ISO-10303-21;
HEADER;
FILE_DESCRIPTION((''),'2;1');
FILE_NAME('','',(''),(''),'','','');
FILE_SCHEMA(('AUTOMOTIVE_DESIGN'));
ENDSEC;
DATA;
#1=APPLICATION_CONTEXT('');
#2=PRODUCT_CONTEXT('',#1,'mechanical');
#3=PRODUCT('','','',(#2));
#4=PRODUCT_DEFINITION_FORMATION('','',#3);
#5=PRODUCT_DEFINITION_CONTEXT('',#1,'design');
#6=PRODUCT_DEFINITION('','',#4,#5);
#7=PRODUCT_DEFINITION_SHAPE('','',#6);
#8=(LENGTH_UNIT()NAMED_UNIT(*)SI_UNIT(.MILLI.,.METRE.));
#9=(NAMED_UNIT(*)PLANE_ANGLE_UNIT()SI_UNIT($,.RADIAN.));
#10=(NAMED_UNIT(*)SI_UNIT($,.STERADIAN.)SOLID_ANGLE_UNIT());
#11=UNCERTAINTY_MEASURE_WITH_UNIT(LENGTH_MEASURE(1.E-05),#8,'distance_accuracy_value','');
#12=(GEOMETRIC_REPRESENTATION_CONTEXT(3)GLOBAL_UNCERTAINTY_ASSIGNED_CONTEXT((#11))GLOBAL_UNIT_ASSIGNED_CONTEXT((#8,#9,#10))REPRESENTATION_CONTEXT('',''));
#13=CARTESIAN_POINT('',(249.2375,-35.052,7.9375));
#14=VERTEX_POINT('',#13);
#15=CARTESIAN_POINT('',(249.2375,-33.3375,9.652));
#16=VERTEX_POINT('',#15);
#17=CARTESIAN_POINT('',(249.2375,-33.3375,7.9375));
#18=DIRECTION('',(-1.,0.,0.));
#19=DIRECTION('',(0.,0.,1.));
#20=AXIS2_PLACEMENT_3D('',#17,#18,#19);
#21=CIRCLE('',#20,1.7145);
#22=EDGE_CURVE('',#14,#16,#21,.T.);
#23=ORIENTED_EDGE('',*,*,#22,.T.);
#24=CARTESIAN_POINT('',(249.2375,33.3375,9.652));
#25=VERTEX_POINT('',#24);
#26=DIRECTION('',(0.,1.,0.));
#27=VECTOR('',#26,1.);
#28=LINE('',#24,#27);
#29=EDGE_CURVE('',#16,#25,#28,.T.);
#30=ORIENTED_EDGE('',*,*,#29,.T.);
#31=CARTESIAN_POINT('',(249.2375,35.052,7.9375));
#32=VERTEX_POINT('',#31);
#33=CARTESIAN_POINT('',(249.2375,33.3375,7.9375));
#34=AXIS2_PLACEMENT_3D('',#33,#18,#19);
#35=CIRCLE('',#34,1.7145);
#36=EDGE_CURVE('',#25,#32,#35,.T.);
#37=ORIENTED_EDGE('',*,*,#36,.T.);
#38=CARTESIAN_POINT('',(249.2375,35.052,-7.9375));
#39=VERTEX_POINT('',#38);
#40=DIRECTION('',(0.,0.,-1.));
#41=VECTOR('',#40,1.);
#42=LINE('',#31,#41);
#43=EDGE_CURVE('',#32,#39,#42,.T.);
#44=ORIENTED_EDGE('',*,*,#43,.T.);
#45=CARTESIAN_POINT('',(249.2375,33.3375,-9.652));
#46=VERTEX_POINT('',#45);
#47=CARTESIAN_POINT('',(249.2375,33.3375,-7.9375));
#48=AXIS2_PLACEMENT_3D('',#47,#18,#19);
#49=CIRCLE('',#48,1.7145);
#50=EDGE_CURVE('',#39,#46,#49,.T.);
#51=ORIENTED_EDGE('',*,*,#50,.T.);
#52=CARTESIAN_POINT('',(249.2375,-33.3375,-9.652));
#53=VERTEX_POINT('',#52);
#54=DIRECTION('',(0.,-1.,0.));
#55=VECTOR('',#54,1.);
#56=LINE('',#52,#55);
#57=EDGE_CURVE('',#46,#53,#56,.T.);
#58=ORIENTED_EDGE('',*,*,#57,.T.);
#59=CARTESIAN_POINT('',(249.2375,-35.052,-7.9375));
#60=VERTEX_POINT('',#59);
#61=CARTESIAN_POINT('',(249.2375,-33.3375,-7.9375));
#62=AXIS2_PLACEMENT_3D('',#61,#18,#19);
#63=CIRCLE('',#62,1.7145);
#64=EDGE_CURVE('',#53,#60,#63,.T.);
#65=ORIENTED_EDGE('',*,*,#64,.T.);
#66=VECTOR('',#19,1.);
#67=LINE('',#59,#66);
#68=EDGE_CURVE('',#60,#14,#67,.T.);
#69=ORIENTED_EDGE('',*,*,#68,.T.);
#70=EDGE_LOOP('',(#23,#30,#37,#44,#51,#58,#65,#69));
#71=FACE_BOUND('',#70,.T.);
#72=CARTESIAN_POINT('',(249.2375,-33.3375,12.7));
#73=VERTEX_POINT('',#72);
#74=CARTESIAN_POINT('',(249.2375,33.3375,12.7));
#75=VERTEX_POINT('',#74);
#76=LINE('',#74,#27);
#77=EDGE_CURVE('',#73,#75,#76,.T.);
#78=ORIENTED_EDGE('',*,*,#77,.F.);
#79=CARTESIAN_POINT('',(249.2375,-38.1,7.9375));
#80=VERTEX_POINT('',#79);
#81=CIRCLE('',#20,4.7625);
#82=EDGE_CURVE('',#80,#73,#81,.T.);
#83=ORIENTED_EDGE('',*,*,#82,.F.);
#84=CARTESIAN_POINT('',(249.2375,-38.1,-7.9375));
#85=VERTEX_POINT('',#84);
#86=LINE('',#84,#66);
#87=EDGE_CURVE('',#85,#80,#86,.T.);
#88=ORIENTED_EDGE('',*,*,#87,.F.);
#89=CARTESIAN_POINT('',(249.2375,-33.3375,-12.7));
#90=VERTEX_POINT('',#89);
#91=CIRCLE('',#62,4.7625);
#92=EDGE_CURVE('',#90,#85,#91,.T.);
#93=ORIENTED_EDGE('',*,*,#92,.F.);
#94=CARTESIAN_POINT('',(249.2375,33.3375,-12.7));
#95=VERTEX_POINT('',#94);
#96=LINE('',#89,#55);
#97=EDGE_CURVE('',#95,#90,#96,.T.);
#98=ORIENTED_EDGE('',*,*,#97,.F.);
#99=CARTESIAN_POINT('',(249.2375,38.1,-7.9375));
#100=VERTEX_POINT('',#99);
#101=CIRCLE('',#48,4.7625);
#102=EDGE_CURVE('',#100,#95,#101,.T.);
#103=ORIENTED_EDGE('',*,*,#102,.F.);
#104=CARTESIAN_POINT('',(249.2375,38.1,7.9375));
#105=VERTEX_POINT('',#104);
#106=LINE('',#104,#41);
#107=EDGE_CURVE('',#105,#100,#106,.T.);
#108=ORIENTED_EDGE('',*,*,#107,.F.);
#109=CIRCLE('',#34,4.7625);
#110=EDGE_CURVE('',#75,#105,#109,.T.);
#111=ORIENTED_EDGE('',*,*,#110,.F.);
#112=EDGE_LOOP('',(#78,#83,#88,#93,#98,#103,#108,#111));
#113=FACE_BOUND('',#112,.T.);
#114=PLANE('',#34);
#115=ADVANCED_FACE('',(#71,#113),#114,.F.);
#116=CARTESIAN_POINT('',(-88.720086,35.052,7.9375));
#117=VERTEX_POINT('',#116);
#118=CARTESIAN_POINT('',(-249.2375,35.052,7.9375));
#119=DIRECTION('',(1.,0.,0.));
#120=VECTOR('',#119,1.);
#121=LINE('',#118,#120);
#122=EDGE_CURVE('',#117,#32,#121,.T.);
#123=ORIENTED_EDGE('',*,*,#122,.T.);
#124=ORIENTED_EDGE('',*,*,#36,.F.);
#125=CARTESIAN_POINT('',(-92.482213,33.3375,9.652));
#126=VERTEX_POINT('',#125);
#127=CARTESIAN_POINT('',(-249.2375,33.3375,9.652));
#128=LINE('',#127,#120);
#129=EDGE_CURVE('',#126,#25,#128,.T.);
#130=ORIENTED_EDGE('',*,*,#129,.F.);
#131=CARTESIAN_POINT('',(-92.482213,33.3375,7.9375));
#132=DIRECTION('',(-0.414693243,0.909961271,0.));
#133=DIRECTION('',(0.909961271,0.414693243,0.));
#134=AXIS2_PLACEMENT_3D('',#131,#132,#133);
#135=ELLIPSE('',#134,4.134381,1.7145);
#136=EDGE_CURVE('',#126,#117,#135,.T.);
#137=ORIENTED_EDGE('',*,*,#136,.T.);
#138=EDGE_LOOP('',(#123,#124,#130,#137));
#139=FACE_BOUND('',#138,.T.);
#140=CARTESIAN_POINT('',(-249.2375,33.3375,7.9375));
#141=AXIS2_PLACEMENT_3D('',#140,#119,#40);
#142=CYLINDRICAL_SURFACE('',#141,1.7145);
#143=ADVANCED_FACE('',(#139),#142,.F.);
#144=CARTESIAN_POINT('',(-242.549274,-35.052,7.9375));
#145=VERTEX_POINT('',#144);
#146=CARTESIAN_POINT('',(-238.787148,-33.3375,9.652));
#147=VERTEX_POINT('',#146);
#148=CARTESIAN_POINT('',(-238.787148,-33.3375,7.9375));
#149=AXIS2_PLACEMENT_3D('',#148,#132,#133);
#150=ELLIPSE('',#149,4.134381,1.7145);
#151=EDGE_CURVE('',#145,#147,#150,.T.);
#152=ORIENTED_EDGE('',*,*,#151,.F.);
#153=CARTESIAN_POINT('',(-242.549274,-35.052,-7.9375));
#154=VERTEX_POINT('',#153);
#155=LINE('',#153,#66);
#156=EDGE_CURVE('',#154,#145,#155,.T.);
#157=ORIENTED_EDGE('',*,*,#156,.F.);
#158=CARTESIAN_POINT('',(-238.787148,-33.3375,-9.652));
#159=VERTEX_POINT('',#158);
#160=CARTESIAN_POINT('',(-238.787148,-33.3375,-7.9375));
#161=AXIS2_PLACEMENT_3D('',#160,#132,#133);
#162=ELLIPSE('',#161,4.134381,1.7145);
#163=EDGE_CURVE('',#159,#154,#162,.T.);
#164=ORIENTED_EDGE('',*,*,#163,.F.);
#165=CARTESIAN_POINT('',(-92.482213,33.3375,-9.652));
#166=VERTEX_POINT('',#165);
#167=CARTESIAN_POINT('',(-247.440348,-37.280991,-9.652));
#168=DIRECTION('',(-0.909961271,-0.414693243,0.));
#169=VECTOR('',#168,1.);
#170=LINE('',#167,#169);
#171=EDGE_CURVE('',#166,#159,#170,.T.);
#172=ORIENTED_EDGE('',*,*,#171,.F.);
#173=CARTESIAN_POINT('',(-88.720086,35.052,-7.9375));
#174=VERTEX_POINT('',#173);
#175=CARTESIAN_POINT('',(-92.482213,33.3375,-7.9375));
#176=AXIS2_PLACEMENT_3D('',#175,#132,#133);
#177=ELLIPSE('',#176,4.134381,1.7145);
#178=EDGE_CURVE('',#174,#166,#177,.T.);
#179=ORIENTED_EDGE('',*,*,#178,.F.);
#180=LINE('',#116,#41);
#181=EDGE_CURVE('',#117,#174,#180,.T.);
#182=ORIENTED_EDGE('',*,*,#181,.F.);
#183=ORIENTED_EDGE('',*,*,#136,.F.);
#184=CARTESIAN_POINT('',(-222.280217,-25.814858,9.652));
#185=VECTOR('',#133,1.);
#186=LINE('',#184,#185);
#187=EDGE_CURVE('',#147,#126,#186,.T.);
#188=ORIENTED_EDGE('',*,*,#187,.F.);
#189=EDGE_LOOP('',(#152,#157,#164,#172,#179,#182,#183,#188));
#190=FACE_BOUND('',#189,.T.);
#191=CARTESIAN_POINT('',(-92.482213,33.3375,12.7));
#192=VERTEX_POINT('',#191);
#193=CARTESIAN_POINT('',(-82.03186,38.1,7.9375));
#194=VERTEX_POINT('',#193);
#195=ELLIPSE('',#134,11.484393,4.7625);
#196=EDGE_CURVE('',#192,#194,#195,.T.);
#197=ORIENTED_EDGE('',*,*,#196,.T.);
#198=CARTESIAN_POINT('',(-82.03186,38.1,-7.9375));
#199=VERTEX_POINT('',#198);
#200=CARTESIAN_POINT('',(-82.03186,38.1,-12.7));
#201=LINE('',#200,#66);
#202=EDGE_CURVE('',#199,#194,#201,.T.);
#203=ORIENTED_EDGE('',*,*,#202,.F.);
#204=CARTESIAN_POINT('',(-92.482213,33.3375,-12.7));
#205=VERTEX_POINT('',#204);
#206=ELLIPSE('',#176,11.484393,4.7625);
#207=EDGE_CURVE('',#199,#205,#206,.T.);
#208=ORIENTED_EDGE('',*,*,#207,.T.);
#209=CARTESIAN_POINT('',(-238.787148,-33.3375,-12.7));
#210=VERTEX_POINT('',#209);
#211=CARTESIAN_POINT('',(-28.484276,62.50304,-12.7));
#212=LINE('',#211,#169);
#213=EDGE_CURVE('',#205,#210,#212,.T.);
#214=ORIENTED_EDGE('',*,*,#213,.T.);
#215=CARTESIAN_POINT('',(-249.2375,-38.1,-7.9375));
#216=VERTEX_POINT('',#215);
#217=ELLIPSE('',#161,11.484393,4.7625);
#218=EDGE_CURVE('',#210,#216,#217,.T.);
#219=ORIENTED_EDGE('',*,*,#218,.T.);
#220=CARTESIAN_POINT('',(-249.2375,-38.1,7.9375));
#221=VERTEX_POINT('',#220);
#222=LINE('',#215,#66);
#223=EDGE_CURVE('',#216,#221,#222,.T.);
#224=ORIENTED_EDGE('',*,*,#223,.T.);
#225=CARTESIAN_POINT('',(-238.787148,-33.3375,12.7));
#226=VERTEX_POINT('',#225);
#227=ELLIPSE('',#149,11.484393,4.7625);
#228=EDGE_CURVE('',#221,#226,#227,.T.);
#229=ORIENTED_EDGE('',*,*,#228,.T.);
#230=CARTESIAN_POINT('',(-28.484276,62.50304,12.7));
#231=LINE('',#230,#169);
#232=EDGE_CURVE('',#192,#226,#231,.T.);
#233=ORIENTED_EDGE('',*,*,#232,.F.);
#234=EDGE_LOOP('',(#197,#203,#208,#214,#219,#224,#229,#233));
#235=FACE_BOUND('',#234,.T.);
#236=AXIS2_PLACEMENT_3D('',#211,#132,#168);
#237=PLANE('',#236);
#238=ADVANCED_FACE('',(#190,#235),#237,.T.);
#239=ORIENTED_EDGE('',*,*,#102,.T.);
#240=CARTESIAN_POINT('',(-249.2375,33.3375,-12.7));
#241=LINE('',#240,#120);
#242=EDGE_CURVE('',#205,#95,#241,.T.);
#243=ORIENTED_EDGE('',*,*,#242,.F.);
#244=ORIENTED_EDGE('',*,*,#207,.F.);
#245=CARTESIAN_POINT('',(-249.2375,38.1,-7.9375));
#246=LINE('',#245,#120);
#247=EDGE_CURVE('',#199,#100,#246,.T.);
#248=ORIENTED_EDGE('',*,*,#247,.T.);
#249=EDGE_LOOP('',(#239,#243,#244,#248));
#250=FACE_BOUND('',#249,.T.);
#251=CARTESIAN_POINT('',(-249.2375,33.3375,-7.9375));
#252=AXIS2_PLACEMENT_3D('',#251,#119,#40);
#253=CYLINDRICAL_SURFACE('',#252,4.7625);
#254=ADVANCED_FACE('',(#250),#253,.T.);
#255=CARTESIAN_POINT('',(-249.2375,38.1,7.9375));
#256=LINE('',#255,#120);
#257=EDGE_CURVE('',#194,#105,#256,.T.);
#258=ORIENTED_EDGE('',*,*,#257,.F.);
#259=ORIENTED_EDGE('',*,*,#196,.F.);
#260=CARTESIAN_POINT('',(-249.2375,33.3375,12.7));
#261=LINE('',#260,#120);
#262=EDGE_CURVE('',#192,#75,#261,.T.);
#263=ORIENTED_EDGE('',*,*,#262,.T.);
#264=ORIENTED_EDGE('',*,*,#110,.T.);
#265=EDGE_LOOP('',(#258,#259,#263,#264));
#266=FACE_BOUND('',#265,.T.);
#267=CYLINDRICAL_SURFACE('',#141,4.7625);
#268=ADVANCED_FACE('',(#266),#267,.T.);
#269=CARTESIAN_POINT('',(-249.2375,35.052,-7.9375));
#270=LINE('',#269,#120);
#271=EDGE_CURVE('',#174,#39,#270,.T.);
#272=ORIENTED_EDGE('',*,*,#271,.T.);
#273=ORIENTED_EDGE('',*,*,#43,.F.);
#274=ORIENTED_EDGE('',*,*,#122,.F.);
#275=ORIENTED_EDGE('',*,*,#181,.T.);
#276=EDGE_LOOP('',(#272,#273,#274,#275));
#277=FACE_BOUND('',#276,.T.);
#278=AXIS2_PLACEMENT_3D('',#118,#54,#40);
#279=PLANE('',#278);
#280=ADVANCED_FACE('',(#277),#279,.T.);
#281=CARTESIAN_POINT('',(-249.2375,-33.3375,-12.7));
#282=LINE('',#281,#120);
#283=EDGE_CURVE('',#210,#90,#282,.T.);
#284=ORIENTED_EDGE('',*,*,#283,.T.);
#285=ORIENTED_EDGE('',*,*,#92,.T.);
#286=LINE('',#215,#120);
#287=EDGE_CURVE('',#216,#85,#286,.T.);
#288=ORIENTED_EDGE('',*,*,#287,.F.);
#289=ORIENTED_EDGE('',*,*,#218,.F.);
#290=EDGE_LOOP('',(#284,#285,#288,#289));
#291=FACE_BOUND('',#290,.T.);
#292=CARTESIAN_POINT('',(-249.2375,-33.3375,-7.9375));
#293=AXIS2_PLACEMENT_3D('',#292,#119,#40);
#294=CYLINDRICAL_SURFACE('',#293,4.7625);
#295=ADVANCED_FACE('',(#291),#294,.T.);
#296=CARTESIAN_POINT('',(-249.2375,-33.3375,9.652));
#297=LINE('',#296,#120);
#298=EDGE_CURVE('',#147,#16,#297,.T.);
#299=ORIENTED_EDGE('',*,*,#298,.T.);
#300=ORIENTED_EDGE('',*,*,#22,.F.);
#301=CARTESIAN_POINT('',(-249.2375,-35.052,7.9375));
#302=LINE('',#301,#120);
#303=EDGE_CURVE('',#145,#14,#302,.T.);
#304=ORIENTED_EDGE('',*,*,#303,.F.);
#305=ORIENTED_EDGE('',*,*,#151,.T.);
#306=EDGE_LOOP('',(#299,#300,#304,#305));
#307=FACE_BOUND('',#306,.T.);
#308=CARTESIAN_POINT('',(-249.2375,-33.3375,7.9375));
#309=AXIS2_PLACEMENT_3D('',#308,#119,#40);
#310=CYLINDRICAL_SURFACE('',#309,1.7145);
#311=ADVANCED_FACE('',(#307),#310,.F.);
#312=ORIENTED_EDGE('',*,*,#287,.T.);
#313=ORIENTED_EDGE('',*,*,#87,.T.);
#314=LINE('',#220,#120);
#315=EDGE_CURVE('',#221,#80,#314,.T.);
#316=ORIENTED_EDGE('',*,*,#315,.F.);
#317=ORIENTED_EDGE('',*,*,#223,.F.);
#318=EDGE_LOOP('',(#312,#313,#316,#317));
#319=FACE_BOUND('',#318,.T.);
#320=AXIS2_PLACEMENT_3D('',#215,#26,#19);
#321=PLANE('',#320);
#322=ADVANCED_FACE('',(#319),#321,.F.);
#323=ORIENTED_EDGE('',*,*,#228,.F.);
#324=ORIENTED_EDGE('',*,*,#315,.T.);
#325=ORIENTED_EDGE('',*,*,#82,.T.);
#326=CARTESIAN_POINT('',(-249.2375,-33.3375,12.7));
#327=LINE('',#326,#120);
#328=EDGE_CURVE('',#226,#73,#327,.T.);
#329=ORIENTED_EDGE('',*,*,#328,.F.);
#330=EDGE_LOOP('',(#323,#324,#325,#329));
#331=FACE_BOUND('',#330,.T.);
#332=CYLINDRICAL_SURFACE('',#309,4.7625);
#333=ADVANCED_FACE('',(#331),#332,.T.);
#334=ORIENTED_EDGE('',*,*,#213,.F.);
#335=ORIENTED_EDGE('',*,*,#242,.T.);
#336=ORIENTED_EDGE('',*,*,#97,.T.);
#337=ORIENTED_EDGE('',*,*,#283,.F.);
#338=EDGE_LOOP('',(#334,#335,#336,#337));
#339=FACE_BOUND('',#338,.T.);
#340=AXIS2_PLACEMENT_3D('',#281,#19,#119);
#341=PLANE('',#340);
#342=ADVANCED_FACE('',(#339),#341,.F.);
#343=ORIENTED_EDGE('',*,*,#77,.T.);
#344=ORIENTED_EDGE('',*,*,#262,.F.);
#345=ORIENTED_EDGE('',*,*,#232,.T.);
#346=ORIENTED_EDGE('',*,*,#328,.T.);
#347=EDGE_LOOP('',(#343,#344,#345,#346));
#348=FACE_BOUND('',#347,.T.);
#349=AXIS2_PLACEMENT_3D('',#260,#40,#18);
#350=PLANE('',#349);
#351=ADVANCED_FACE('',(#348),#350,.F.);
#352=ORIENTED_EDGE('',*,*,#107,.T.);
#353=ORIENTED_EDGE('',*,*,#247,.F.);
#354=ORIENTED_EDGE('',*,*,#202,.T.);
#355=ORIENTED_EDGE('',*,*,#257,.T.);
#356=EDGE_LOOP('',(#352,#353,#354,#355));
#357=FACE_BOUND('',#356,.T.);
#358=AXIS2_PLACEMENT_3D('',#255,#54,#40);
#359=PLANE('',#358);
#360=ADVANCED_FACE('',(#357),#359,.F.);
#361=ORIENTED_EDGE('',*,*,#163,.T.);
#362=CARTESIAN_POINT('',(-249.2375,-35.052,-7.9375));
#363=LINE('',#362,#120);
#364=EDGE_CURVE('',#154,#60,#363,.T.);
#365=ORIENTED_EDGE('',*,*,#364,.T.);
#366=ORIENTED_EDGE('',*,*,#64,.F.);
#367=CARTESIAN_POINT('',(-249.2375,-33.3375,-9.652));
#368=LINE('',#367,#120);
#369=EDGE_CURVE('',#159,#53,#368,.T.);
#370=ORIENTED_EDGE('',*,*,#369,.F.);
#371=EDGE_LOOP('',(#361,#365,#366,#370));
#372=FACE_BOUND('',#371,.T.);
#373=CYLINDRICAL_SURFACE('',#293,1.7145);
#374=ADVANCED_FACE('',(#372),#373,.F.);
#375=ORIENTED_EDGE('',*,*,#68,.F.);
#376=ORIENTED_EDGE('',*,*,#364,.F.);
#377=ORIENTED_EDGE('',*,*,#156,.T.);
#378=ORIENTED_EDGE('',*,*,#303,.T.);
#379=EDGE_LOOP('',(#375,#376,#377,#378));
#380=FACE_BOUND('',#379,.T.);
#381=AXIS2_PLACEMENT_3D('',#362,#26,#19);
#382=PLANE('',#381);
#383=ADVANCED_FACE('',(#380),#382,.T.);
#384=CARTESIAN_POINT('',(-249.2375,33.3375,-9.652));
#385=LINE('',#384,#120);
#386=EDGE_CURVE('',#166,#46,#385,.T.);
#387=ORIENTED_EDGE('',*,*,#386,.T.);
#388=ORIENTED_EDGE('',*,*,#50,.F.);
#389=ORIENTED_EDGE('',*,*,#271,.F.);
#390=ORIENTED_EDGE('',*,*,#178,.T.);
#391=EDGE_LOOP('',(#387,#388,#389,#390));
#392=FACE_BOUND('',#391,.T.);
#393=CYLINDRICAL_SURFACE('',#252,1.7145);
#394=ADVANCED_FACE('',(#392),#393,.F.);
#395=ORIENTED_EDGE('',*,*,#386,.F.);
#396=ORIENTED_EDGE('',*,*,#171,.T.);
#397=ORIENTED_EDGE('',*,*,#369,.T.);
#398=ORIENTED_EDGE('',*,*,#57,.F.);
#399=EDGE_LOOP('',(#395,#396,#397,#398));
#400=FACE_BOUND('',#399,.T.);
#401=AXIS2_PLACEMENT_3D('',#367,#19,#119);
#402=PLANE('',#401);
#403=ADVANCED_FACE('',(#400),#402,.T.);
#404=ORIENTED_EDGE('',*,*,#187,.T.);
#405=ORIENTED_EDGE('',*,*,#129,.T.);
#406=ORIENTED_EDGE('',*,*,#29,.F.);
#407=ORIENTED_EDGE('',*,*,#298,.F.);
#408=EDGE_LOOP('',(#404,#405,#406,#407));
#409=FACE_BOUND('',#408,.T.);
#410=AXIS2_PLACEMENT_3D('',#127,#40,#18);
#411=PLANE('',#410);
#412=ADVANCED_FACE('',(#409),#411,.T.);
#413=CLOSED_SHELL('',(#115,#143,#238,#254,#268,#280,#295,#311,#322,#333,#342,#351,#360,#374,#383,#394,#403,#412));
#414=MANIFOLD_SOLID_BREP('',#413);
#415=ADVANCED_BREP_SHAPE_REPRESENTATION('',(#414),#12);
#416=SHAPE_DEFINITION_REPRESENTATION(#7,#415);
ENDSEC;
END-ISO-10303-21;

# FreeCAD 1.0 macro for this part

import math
import FreeCAD as App
import Part
import Sketcher
from FreeCAD import Vector
Q = App.Units.Quantity


def add_polygon(sketch, points):
    """Adds a closed chain of lines whose ends are joined by coincident constraints."""
    first, n = sketch.GeometryCount, len(points)
    for a, b in zip(points, points[1:] + points[:1]):
        sketch.addGeometry(Part.LineSegment(App.Vector(*a, 0), App.Vector(*b, 0)), False)
    for i in range(n):
        sketch.addConstraint(Sketcher.Constraint("Coincident", first + i, 2, first + (i + 1) % n, 1))

doc = App.newDocument("Part")
body = doc.addObject("PartDesign::Body", "Body")

# Sketch on YZ plane
sketch1 = doc.addObject("Sketcher::SketchObject", "Sketch")
body.addObject(sketch1)
sketch1.AttachmentSupport = (doc.YZ_Plane, [""])
sketch1.MapMode = "FlatFace"
sketch1.AttachmentOffset = App.Placement(Vector(0, 0, 9.8125 * 25.4), App.Rotation())
sketch1.addGeometry([
    Part.LineSegment(Vector(-38.1, -7.9375, 0), Vector(-38.1, 7.9375, 0)),  # 0
    Part.ArcOfCircle(Part.Circle(Vector(-33.3375, 7.9375, 0), Vector(0, 0, 1), 4.7625), math.radians(90), math.radians(180)),  # 1
    Part.LineSegment(Vector(-33.3375, 12.7, 0), Vector(33.3375, 12.7, 0)),  # 2
    Part.ArcOfCircle(Part.Circle(Vector(33.3375, 7.9375, 0), Vector(0, 0, 1), 4.7625), math.radians(0), math.radians(90)),  # 3
    Part.LineSegment(Vector(38.1, 7.9375, 0), Vector(38.1, -7.9375, 0)),  # 4
    Part.ArcOfCircle(Part.Circle(Vector(33.3375, -7.9375, 0), Vector(0, 0, 1), 4.7625), math.radians(-90), math.radians(0)),  # 5
    Part.LineSegment(Vector(33.3375, -12.7, 0), Vector(-33.3375, -12.7, 0)),  # 6
    Part.ArcOfCircle(Part.Circle(Vector(-33.3375, -7.9375, 0), Vector(0, 0, 1), 4.7625), math.radians(-180), math.radians(-90)),  # 7
    Part.LineSegment(Vector(-35.052, 7.9375, 0), Vector(-35.052, -7.9375, 0)),  # 8
    Part.ArcOfCircle(Part.Circle(Vector(-33.3375, -7.9375, 0), Vector(0, 0, 1), 1.7145), math.radians(-180), math.radians(-90)),  # 9
    Part.LineSegment(Vector(-33.3375, -9.652, 0), Vector(33.3375, -9.652, 0)),  # 10
    Part.ArcOfCircle(Part.Circle(Vector(33.3375, -7.9375, 0), Vector(0, 0, 1), 1.7145), math.radians(-90), math.radians(0)),  # 11
    Part.LineSegment(Vector(35.052, -7.9375, 0), Vector(35.052, 7.9375, 0)),  # 12
    Part.ArcOfCircle(Part.Circle(Vector(33.3375, 7.9375, 0), Vector(0, 0, 1), 1.7145), math.radians(0), math.radians(90)),  # 13
    Part.LineSegment(Vector(33.3375, 9.652, 0), Vector(-33.3375, 9.652, 0)),  # 14
    Part.ArcOfCircle(Part.Circle(Vector(-33.3375, 7.9375, 0), Vector(0, 0, 1), 1.7145), math.radians(90), math.radians(180)),  # 15
], False)
sketch1.addConstraint([
    Sketcher.Constraint("Tangent", 0, 2, 1, 2),
    Sketcher.Constraint("Tangent", 1, 1, 2, 1),
    Sketcher.Constraint("Tangent", 2, 2, 3, 2),
    Sketcher.Constraint("Tangent", 3, 1, 4, 1),
    Sketcher.Constraint("Tangent", 4, 2, 5, 2),
    Sketcher.Constraint("Tangent", 5, 1, 6, 1),
    Sketcher.Constraint("Tangent", 6, 2, 7, 2),
    Sketcher.Constraint("Tangent", 7, 1, 0, 1),
    Sketcher.Constraint("Tangent", 8, 2, 9, 1),
    Sketcher.Constraint("Tangent", 9, 2, 10, 1),
    Sketcher.Constraint("Tangent", 10, 2, 11, 1),
    Sketcher.Constraint("Tangent", 11, 2, 12, 1),
    Sketcher.Constraint("Tangent", 12, 2, 13, 1),
    Sketcher.Constraint("Tangent", 13, 2, 14, 1),
    Sketcher.Constraint("Tangent", 14, 2, 15, 1),
    Sketcher.Constraint("Tangent", 15, 2, 8, 1),
    Sketcher.Constraint("Vertical", 0),
    Sketcher.Constraint("Horizontal", 2),
    Sketcher.Constraint("Vertical", 4),
    Sketcher.Constraint("Horizontal", 6),
    Sketcher.Constraint("Vertical", 8),
    Sketcher.Constraint("Horizontal", 10),
    Sketcher.Constraint("Vertical", 12),
    Sketcher.Constraint("Horizontal", 14),
    Sketcher.Constraint("Coincident", 9, 3, 7, 3),
    Sketcher.Constraint("Coincident", 11, 3, 5, 3),
    Sketcher.Constraint("Coincident", 13, 3, 3, 3),
    Sketcher.Constraint("Equal", 1, 3),
    Sketcher.Constraint("Equal", 3, 5),
    Sketcher.Constraint("Equal", 5, 7),
    Sketcher.Constraint("Equal", 13, 15),
    Sketcher.Constraint("Symmetric", 1, 3, 5, 3, -1, 1),
    Sketcher.Constraint("Radius", 1, Q("0.1875 in")),
    Sketcher.Constraint("DistanceX", 0, 2, -1, 1, Q("1.5 in")),
    Sketcher.Constraint("DistanceY", -1, 1, 1, 1, Q("0.5 in")),
    Sketcher.Constraint("Radius", 9, Q("0.0675 in")),
])
pad1 = doc.addObject("PartDesign::Pad", "Pad")
body.addObject(pad1)
pad1.Profile = sketch1
pad1.Length = Q("19.625 in")
pad1.Reversed = True

# Sketch on XY plane
sketch2 = doc.addObject("Sketcher::SketchObject", "Sketch001")
body.addObject(sketch2)
sketch2.AttachmentSupport = (doc.XY_Plane, [""])
sketch2.MapMode = "FlatFace"
sketch2.AttachmentOffset = App.Placement(Vector(0, 0, 0.5 * 25.4), App.Rotation())
add_polygon(sketch2, [(-249.2375, 38.1), (-249.2375, -38.1), (-82.03186, 38.1)])  # lines 0-2
sketch2.addConstraint([
    Sketcher.Constraint("Vertical", 0),
    Sketcher.Constraint("Horizontal", 2),
    Sketcher.Constraint("DistanceY", 0, 2, 0, 1, Q("3 in")),
    Sketcher.Constraint("DistanceY", 0, 2, -1, 1, Q("1.5 in")),
    Sketcher.Constraint("Angle", 1, Q("24.5 deg")),
    Sketcher.Constraint("DistanceX", 0, 2, -1, 1, Q("9.8125 in")),
])
pocket1 = doc.addObject("PartDesign::Pocket", "Pocket")
body.addObject(pocket1)
pocket1.Profile = sketch2
pocket1.Type = "ThroughAll"

doc.recompute()
